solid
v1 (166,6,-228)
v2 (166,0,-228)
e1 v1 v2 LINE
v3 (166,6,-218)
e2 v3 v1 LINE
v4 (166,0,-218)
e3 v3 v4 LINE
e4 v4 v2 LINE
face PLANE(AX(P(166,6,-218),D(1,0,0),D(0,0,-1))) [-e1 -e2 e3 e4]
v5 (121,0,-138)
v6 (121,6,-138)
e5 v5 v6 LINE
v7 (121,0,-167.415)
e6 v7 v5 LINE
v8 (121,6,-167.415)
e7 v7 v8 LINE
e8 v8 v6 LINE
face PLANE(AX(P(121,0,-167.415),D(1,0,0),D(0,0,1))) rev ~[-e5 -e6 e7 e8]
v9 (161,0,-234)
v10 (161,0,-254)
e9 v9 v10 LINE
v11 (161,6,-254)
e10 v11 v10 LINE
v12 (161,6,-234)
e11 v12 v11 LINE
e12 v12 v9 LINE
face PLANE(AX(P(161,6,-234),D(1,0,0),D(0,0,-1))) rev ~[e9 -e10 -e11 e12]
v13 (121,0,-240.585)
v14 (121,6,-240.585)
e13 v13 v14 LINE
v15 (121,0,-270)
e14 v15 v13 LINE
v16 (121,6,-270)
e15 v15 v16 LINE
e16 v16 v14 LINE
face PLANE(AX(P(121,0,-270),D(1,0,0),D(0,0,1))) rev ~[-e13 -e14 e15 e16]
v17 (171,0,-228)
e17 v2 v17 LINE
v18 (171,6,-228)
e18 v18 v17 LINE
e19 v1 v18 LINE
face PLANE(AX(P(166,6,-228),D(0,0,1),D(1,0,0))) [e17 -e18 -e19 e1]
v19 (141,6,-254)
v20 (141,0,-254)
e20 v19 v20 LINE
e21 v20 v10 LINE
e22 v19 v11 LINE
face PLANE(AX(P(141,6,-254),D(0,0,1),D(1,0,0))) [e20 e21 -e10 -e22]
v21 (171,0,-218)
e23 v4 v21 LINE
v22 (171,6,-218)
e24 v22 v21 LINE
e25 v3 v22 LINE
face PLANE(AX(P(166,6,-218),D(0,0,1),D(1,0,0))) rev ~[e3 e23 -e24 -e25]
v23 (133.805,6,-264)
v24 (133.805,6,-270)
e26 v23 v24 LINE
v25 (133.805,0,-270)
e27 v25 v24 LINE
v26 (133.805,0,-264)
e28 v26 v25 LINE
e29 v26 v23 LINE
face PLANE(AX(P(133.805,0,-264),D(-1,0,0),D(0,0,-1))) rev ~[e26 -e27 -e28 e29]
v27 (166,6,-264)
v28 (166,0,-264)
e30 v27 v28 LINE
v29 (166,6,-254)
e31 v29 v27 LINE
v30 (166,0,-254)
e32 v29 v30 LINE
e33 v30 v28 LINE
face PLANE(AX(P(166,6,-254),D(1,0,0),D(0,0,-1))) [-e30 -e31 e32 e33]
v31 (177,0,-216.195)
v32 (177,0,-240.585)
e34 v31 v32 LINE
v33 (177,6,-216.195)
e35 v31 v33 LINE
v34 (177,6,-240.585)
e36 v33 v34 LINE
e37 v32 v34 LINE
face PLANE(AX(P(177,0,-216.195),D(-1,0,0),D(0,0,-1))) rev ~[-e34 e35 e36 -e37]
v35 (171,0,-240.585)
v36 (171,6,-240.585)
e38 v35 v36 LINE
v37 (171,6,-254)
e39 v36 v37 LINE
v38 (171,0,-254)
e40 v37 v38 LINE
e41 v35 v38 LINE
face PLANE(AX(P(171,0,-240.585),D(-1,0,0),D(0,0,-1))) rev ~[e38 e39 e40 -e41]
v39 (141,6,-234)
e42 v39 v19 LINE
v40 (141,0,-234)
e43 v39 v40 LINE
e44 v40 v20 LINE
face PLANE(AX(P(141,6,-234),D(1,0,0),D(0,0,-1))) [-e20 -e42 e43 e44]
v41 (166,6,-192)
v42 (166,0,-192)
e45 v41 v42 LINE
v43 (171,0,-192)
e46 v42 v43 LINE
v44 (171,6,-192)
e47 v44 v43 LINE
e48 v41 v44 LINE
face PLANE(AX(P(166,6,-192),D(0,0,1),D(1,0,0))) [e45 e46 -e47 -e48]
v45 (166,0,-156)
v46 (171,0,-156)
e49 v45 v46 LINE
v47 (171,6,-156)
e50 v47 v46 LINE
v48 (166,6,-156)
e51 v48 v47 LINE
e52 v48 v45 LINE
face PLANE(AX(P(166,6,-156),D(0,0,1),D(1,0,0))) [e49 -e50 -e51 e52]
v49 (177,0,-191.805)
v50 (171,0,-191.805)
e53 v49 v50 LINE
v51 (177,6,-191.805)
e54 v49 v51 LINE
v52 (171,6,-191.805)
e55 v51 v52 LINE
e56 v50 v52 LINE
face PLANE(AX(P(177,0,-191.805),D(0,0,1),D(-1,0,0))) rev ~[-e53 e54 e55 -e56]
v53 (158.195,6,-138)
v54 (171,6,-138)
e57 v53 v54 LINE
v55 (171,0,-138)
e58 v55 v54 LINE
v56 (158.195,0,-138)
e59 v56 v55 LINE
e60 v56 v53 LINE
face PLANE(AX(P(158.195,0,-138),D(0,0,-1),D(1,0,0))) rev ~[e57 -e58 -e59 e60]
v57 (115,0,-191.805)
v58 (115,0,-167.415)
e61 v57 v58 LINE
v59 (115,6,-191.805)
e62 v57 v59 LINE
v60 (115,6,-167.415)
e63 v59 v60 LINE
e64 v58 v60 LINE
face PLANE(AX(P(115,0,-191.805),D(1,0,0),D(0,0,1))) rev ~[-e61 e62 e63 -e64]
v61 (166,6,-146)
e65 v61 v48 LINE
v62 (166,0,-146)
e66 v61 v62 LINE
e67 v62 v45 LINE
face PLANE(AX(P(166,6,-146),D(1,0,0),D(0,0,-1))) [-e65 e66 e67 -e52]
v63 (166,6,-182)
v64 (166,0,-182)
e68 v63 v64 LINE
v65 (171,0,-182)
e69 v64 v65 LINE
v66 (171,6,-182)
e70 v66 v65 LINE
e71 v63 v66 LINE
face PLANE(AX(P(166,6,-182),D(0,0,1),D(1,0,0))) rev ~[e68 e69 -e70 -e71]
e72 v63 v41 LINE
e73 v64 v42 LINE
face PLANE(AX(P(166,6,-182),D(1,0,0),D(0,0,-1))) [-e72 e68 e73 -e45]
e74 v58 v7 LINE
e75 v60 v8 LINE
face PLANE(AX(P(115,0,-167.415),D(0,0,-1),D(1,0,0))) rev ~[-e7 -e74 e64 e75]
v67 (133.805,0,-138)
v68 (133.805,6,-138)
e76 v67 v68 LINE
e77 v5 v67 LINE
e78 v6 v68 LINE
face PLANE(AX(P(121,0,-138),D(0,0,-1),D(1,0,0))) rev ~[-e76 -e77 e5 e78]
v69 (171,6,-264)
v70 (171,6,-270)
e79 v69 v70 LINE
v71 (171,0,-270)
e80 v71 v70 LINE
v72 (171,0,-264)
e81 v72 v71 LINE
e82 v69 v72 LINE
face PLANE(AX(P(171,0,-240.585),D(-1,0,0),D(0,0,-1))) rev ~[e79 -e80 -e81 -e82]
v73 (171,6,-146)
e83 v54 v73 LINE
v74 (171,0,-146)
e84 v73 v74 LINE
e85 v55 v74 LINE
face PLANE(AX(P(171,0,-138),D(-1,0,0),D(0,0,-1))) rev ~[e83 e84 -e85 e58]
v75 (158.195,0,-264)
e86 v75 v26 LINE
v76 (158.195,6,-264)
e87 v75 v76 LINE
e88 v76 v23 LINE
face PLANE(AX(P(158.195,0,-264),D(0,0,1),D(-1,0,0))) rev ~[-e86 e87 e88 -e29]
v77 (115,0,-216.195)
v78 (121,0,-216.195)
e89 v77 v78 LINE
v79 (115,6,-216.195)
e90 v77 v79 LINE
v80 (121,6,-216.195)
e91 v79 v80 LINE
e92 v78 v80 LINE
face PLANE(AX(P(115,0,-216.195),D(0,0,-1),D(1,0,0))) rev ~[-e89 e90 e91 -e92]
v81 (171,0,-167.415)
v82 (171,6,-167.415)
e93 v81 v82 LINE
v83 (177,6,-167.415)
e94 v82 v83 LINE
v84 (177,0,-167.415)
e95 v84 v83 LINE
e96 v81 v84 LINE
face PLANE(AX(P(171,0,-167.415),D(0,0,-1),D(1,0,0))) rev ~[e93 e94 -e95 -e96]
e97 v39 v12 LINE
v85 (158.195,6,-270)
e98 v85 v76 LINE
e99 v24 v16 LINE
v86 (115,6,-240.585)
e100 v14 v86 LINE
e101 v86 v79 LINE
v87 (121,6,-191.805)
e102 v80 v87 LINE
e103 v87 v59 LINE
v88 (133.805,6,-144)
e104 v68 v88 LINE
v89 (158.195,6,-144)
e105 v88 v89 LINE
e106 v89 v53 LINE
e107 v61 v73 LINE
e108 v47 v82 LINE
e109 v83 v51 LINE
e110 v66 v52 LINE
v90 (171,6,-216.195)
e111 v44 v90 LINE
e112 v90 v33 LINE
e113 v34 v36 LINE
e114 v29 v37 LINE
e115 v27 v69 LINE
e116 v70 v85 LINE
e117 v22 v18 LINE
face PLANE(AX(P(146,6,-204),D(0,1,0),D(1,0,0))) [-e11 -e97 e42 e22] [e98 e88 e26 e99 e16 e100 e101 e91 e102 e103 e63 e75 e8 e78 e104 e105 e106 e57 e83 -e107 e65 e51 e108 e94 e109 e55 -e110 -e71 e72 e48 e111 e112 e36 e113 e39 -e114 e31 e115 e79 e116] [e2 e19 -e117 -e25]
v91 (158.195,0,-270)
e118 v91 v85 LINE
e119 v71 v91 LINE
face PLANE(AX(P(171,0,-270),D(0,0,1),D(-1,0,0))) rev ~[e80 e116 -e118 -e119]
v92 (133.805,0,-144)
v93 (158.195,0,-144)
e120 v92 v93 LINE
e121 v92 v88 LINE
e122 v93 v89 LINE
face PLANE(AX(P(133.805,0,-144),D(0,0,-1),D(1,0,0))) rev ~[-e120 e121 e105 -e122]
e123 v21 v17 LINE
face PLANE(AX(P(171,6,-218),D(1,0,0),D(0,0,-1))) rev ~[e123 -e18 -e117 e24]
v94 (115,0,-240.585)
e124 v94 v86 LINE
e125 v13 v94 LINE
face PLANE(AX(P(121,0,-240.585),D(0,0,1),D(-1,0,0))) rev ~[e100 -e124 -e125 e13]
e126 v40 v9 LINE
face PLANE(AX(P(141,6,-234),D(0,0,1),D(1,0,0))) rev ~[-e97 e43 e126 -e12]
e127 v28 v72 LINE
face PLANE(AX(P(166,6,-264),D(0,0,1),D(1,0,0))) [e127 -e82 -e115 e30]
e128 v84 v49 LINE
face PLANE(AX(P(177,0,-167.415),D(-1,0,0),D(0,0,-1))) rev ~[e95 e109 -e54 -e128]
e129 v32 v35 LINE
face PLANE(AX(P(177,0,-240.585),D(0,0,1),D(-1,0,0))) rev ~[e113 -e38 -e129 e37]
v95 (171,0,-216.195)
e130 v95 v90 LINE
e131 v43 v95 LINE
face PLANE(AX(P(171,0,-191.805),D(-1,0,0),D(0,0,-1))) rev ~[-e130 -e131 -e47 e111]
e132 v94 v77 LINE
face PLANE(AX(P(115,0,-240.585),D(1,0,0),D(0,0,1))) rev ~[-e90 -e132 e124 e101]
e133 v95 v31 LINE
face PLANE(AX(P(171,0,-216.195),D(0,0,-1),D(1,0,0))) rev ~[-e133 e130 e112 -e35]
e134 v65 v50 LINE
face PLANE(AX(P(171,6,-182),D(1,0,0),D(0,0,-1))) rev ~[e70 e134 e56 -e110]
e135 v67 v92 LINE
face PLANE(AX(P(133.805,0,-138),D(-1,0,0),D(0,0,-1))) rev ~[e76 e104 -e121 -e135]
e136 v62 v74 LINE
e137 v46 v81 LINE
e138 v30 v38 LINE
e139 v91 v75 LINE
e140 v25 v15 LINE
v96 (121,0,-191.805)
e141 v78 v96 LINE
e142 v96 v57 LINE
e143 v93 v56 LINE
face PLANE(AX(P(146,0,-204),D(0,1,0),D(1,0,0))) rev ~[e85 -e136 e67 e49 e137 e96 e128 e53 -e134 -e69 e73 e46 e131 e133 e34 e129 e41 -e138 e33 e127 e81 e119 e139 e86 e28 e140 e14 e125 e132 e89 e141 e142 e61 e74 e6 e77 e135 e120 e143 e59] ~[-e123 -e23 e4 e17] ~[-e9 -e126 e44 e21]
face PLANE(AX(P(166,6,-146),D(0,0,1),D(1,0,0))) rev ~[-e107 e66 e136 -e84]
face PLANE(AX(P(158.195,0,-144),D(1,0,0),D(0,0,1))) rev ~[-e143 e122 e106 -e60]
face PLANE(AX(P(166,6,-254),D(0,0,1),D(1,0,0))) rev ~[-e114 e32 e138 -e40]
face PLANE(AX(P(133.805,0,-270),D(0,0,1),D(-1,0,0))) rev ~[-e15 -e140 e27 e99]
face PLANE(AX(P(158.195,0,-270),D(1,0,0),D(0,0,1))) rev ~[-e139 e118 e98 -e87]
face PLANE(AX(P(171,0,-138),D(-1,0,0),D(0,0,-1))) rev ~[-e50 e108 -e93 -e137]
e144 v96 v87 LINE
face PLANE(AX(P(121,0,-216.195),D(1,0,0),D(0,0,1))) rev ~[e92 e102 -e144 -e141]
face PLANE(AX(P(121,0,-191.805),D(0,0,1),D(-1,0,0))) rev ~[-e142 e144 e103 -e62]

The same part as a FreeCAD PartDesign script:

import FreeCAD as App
import Part
import Sketcher

V = App.Vector


def add_polygon(sketch, points):
    """Adds a closed chain of lines whose ends are joined by coincident constraints."""
    first, n = sketch.GeometryCount, len(points)
    for a, b in zip(points, points[1:] + points[:1]):
        sketch.addGeometry(Part.LineSegment(App.Vector(*a, 0), App.Vector(*b, 0)), False)
    for i in range(n):
        sketch.addConstraint(Sketcher.Constraint("Coincident", first + i, 2, first + (i + 1) % n, 1))

doc = App.newDocument("Part")
body = doc.addObject("PartDesign::Body", "Body")

# Sketch on XZ plane
sketch1 = body.newObject("Sketcher::SketchObject", "Sketch")
sketch1.AttachmentSupport = (doc.getObject("XZ_Plane"), [""])
sketch1.MapMode = "FlatFace"
add_polygon(sketch1, [(121, -270), (121, -241), (115, -241), (115, -216), (121, -216), (121, -192), (115, -192), (115, -167), (121, -167), (121, -138), (134, -138), (134, -144), (158, -144), (158, -138), (171, -138), (171, -167), (177, -167), (177, -192), (171, -192), (171, -216), (177, -216), (177, -241), (171, -241), (171, -270), (158, -270), (158, -264), (134, -264), (134, -270)])  # lines 0-27
sketch1.addConstraint([
    Sketcher.Constraint("Vertical", 0),
    Sketcher.Constraint("Horizontal", 1),
    Sketcher.Constraint("Vertical", 2),
    Sketcher.Constraint("Horizontal", 3),
    Sketcher.Constraint("Vertical", 4),
    Sketcher.Constraint("Horizontal", 5),
    Sketcher.Constraint("Vertical", 6),
    Sketcher.Constraint("Horizontal", 7),
    Sketcher.Constraint("Vertical", 8),
    Sketcher.Constraint("Horizontal", 9),
    Sketcher.Constraint("Vertical", 10),
    Sketcher.Constraint("Horizontal", 11),
    Sketcher.Constraint("Vertical", 12),
    Sketcher.Constraint("Horizontal", 13),
    Sketcher.Constraint("Vertical", 14),
    Sketcher.Constraint("Horizontal", 15),
    Sketcher.Constraint("Vertical", 16),
    Sketcher.Constraint("Horizontal", 17),
    Sketcher.Constraint("Vertical", 18),
    Sketcher.Constraint("Horizontal", 19),
    Sketcher.Constraint("Vertical", 20),
    Sketcher.Constraint("Horizontal", 21),
    Sketcher.Constraint("Vertical", 22),
    Sketcher.Constraint("Horizontal", 23),
    Sketcher.Constraint("Vertical", 24),
    Sketcher.Constraint("Horizontal", 25),
    Sketcher.Constraint("Vertical", 26),
    Sketcher.Constraint("Horizontal", 27),
    Sketcher.Constraint("Horizontal", 9, 2, 12, 2),
    Sketcher.Constraint("Horizontal", 7, 2, 14, 2),
    Sketcher.Constraint("Horizontal", 5, 2, 16, 2),
    Sketcher.Constraint("Horizontal", 3, 2, 18, 2),
    Sketcher.Constraint("Horizontal", 1, 2, 20, 2),
    Sketcher.Constraint("Horizontal", 23, 2, 26, 2),
    Sketcher.Constraint("Vertical", 0, 2, 3, 2),
    Sketcher.Constraint("Vertical", 2, 2, 5, 2),
    Sketcher.Constraint("Vertical", 4, 2, 7, 2),
    Sketcher.Constraint("Vertical", 14, 2, 17, 2),
    Sketcher.Constraint("Vertical", 16, 2, 19, 2),
    Sketcher.Constraint("Vertical", 18, 2, 21, 2),
    Sketcher.Constraint("Vertical", 12, 2, 23, 2),
    Sketcher.Constraint("Vertical", 10, 2, 25, 2),
    Sketcher.Constraint("Equal", 9, 13),
    Sketcher.Constraint("Equal", 7, 15),
    Sketcher.Constraint("Equal", 25, 2),
    Sketcher.Constraint("Equal", 2, 4),
    Sketcher.Constraint("Equal", 4, 6),
    Sketcher.Constraint("Equal", 0, 8),
    Sketcher.Constraint("Equal", 21, 10),
    Sketcher.Constraint("Equal", 12, 24),
    Sketcher.Constraint("DistanceX", 1, 2, 1, 1, 6.0),
    Sketcher.Constraint("DistanceX", -1, 1, 0, 2, 121.0),
    Sketcher.Constraint("DistanceY", 8, 2, -1, 1, 138.0),
    Sketcher.Constraint("DistanceX", -1, 1, 13, 2, 171.0),
    Sketcher.Constraint("DistanceY", 22, 2, -1, 1, 270.0),
    Sketcher.Constraint("DistanceX", 11, 1, 11, 2, 24.39),
])
pad1 = body.newObject("PartDesign::Pad", "Pad")
pad1.Profile = sketch1
pad1.Length = 6
pad1.Reversed = True

# Sketch on XZ plane
sketch2 = body.newObject("Sketcher::SketchObject", "Sketch001")
sketch2.AttachmentSupport = (doc.getObject("XZ_Plane"), [""])
sketch2.MapMode = "FlatFace"
sketch2.AttachmentOffset = App.Placement(V(0, 0, -6), App.Rotation())
add_polygon(sketch2, [(141, -254), (141, -234), (161, -234), (161, -254)])  # lines 0-3
add_polygon(sketch2, [(166, -228), (166, -218), (171, -218), (171, -228)])  # lines 4-7
add_polygon(sketch2, [(166, -264), (166, -254), (171, -254), (171, -264)])  # lines 8-11
add_polygon(sketch2, [(166, -192), (166, -182), (171, -182), (171, -192)])  # lines 12-15
add_polygon(sketch2, [(166, -156), (166, -146), (171, -146), (171, -156)])  # lines 16-19
sketch2.addConstraint([
    Sketcher.Constraint("Vertical", 0),
    Sketcher.Constraint("Horizontal", 1),
    Sketcher.Constraint("Vertical", 2),
    Sketcher.Constraint("Horizontal", 3),
    Sketcher.Constraint("Vertical", 4),
    Sketcher.Constraint("Horizontal", 5),
    Sketcher.Constraint("Vertical", 6),
    Sketcher.Constraint("Horizontal", 7),
    Sketcher.Constraint("Vertical", 8),
    Sketcher.Constraint("Horizontal", 9),
    Sketcher.Constraint("Vertical", 10),
    Sketcher.Constraint("Horizontal", 11),
    Sketcher.Constraint("Vertical", 12),
    Sketcher.Constraint("Horizontal", 13),
    Sketcher.Constraint("Vertical", 14),
    Sketcher.Constraint("Horizontal", 15),
    Sketcher.Constraint("Vertical", 16),
    Sketcher.Constraint("Horizontal", 17),
    Sketcher.Constraint("Vertical", 18),
    Sketcher.Constraint("Horizontal", 19),
    Sketcher.Constraint("Horizontal", 3, 2, 8, 2),
    Sketcher.Constraint("Vertical", 7, 2, 8, 2),
    Sketcher.Constraint("Vertical", 6, 2, 9, 2),
    Sketcher.Constraint("Vertical", 11, 2, 12, 2),
    Sketcher.Constraint("Vertical", 10, 2, 13, 2),
    Sketcher.Constraint("Vertical", 15, 2, 16, 2),
    Sketcher.Constraint("Vertical", 14, 2, 17, 2),
    Sketcher.Constraint("Equal", 3, 0),
    Sketcher.Constraint("Equal", 6, 8),
    Sketcher.Constraint("Equal", 10, 12),
    Sketcher.Constraint("Equal", 14, 16),
    Sketcher.Constraint("DistanceX", 1, 1, 1, 2, 20.0),
    Sketcher.Constraint("DistanceX", 5, 1, 5, 2, 5.0),
    Sketcher.Constraint("DistanceY", 4, 1, 4, 2, 10.0),
    Sketcher.Constraint("DistanceX", -1, 1, 0, 2, 141.0),
    Sketcher.Constraint("DistanceY", 0, 2, -1, 1, 234.0),
    Sketcher.Constraint("DistanceX", -1, 1, 4, 2, 166.0),
    Sketcher.Constraint("DistanceY", 4, 2, -1, 1, 218.0),
    Sketcher.Constraint("DistanceY", 12, 2, -1, 1, 182.0),
    Sketcher.Constraint("DistanceY", 16, 2, -1, 1, 146.0),
])
pocket1 = body.newObject("PartDesign::Pocket", "Pocket")
pocket1.Profile = sketch2
pocket1.Length = 6
pocket1.Reversed = True

doc.recompute()
